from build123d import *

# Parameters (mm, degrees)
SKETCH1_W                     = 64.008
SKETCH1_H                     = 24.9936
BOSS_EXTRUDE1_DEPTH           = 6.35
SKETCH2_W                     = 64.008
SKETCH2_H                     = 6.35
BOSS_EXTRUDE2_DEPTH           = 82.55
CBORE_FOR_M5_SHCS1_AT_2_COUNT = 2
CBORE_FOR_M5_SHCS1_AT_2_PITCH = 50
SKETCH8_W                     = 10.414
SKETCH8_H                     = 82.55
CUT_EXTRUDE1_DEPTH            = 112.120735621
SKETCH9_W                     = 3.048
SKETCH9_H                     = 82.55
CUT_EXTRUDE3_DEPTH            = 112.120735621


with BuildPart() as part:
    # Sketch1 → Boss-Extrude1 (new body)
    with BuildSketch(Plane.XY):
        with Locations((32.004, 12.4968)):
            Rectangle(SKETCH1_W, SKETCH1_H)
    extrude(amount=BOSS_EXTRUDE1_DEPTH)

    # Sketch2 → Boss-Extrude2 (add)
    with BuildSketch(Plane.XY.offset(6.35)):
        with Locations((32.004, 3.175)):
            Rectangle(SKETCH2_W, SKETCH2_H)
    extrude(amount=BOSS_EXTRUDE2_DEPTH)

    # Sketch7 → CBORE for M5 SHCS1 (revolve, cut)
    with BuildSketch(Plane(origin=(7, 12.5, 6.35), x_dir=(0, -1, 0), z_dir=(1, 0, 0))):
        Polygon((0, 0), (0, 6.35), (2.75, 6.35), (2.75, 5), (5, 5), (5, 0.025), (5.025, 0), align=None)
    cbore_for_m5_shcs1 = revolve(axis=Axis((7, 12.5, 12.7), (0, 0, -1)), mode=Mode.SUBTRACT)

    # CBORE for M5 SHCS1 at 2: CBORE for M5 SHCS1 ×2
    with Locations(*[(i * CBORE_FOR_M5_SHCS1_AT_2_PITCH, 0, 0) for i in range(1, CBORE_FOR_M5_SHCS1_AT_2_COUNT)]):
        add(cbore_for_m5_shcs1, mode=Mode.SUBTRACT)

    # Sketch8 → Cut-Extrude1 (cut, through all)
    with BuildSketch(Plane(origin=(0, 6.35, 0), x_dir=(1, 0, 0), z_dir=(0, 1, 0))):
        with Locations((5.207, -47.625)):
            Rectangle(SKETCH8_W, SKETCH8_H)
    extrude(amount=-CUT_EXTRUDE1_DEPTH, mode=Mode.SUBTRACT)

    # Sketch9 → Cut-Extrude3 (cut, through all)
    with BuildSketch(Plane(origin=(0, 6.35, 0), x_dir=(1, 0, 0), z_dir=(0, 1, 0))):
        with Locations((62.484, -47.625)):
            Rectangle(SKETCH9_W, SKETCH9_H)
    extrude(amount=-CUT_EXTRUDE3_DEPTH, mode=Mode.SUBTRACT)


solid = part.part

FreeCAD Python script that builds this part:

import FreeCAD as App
import Part
import Sketcher
from FreeCAD import Vector
Q = App.Units.Quantity

doc = App.newDocument("Part")
params = doc.addObject("Spreadsheet::Sheet", "Params")
for row, (alias, value) in enumerate([
    ("sketch1_width", "2.52 in"),
    ("sketch1_height", "0.984 in"),
    ("pad1_length", "0.25 in"),
    ("sketch2_width", "2.52 in"),
    ("sketch2_height", "0.25 in"),
    ("pad2_length", "3.25 in"),
    ("sketch3_height", "0.25 in"),
    ("groove_angle", "360 deg"),
    ("linearpattern_pitch", "50 mm"),
    ("sketch4_width", "0.41 in"),
    ("sketch4_height", "3.25 in"),
    ("sketch5_width", "0.12 in"),
    ("sketch5_height", "3.25 in"),
], start=1):
    params.set(f"A{row}", alias)
    params.set(f"B{row}", "=" + value)
    params.setAlias(f"B{row}", alias)

body = doc.addObject("PartDesign::Body", "Body")

# Sketch on XY plane
sketch1 = body.newObject("Sketcher::SketchObject", "Sketch")
sketch1.AttachmentSupport = (doc.getObject("XY_Plane"), [""])
sketch1.MapMode = "FlatFace"
sketch1.addGeometry([
    Part.LineSegment(Vector(0, 24.9936, 0), Vector(0, 0, 0)),
    Part.LineSegment(Vector(0, 0, 0), Vector(64.008, 0, 0)),
    Part.LineSegment(Vector(64.008, 0, 0), Vector(64.008, 24.9936, 0)),
    Part.LineSegment(Vector(64.008, 24.9936, 0), Vector(0, 24.9936, 0)),
], False)
sketch1.addConstraint([
    Sketcher.Constraint("Coincident", 0, 2, 1, 1),
    Sketcher.Constraint("Coincident", 1, 2, 2, 1),
    Sketcher.Constraint("Coincident", 2, 2, 3, 1),
    Sketcher.Constraint("Coincident", 3, 2, 0, 1),
    Sketcher.Constraint("Vertical", 0),
    Sketcher.Constraint("Horizontal", 1),
    Sketcher.Constraint("Vertical", 2),
    Sketcher.Constraint("Horizontal", 3),
    Sketcher.Constraint("Coincident", 0, 2, -1, 1),
    Sketcher.Constraint("DistanceX", 1, 1, 1, 2, Q("2.52 in")),
    Sketcher.Constraint("DistanceY", 0, 2, 0, 1, Q("0.984 in")),
])
sketch1.setExpression("Constraints[9]", "Params.sketch1_width")
sketch1.setExpression("Constraints[10]", "Params.sketch1_height")
pad1 = body.newObject("PartDesign::Pad", "Pad")
pad1.Profile = sketch1
pad1.setExpression("Length", "Params.pad1_length")

# Sketch on XY plane
sketch2 = body.newObject("Sketcher::SketchObject", "Sketch001")
sketch2.AttachmentSupport = (doc.getObject("XY_Plane"), [""])
sketch2.MapMode = "FlatFace"
sketch2.AttachmentOffset = App.Placement(Vector(0, 0, 0.25 * 25.4), App.Rotation())
sketch2.addGeometry([
    Part.LineSegment(Vector(0, 6.35, 0), Vector(0, 0, 0)),
    Part.LineSegment(Vector(0, 0, 0), Vector(64.008, 0, 0)),
    Part.LineSegment(Vector(64.008, 0, 0), Vector(64.008, 6.35, 0)),
    Part.LineSegment(Vector(64.008, 6.35, 0), Vector(0, 6.35, 0)),
], False)
sketch2.addConstraint([
    Sketcher.Constraint("Coincident", 0, 2, 1, 1),
    Sketcher.Constraint("Coincident", 1, 2, 2, 1),
    Sketcher.Constraint("Coincident", 2, 2, 3, 1),
    Sketcher.Constraint("Coincident", 3, 2, 0, 1),
    Sketcher.Constraint("Vertical", 0),
    Sketcher.Constraint("Horizontal", 1),
    Sketcher.Constraint("Vertical", 2),
    Sketcher.Constraint("Horizontal", 3),
    Sketcher.Constraint("Coincident", 0, 2, -1, 1),
    Sketcher.Constraint("DistanceX", 1, 1, 1, 2, Q("2.52 in")),
    Sketcher.Constraint("DistanceY", 0, 2, 0, 1, Q("0.25 in")),
])
sketch2.setExpression("Constraints[9]", "Params.sketch2_width")
sketch2.setExpression("Constraints[10]", "Params.sketch2_height")
pad2 = body.newObject("PartDesign::Pad", "Pad001")
pad2.Profile = sketch2
pad2.setExpression("Length", "Params.pad2_length")

# Sketch on YZ plane
sketch3 = body.newObject("Sketcher::SketchObject", "Sketch002")
sketch3.AttachmentSupport = (doc.getObject("YZ_Plane"), [""])
sketch3.MapMode = "FlatFace"
sketch3.AttachmentOffset = App.Placement(Vector(0, 0, 7), App.Rotation())
sketch3.addGeometry([
    Part.LineSegment(Vector(12.5, 0, 0), Vector(12.5, 6.35, 0)),  # 0
    Part.LineSegment(Vector(12.5, 6.35, 0), Vector(7.475, 6.35, 0)),  # 1
    Part.LineSegment(Vector(7.475, 6.35, 0), Vector(7.5, 6.325, 0)),  # 2
    Part.LineSegment(Vector(7.5, 6.325, 0), Vector(7.5, 1.35, 0)),  # 3
    Part.LineSegment(Vector(7.5, 1.35, 0), Vector(9.75, 1.35, 0)),  # 4
    Part.LineSegment(Vector(9.75, 1.35, 0), Vector(9.75, 0, 0)),  # 5
    Part.LineSegment(Vector(9.75, 0, 0), Vector(12.5, 0, 0)),  # 6
], False)
sketch3.addGeometry(Part.LineSegment(Vector(12.5, 6.35, 0), Vector(12.5, 0, 0)), True)  # axis
sketch3.addConstraint([
    Sketcher.Constraint("Coincident", 0, 2, 1, 1),
    Sketcher.Constraint("Coincident", 1, 2, 2, 1),
    Sketcher.Constraint("Coincident", 2, 2, 3, 1),
    Sketcher.Constraint("Coincident", 3, 2, 4, 1),
    Sketcher.Constraint("Coincident", 4, 2, 5, 1),
    Sketcher.Constraint("Coincident", 5, 2, 6, 1),
    Sketcher.Constraint("Coincident", 6, 2, 0, 1),
    Sketcher.Constraint("Vertical", 0),
    Sketcher.Constraint("Horizontal", 1),
    Sketcher.Constraint("Vertical", 3),
    Sketcher.Constraint("Horizontal", 4),
    Sketcher.Constraint("Vertical", 5),
    Sketcher.Constraint("Horizontal", 6),
    Sketcher.Constraint("Vertical", 7),
    Sketcher.Constraint("Coincident", 7, 1, 0, 2),
    Sketcher.Constraint("PointOnObject", 5, 2, -1),
    Sketcher.Constraint("PointOnObject", 7, 2, -1),
    Sketcher.Constraint("Angle", 2, Q("-45 deg")),
    Sketcher.Constraint("DistanceY", 0, 1, 0, 2, Q("0.25 in")),
    Sketcher.Constraint("DistanceX", 1, 2, 1, 1, 5.025),
    Sketcher.Constraint("DistanceX", 4, 1, 4, 2, 2.25),
    Sketcher.Constraint("DistanceX", 6, 1, 6, 2, 2.75),
    Sketcher.Constraint("DistanceY", 3, 2, 3, 1, 4.975),
    Sketcher.Constraint("DistanceX", -1, 1, 0, 2, 12.5),
])
sketch3.setExpression("Constraints[18]", "Params.sketch3_height")
groove = body.newObject("PartDesign::Groove", "Groove")
groove.Profile = sketch3
groove.ReferenceAxis = (sketch3, ["Axis0"])
groove.setExpression("Angle", "Params.groove_angle")
doc.recompute()

linearpattern = body.newObject("PartDesign::LinearPattern", "LinearPattern")
linearpattern.Originals = [groove]
linearpattern.Direction = (doc.getObject("X_Axis"), [""])
linearpattern.Mode = "offset"
linearpattern.setExpression("Offset", "Params.linearpattern_pitch")
linearpattern.Occurrences = 2
body.Tip = linearpattern

# Sketch on XZ plane
sketch4 = body.newObject("Sketcher::SketchObject", "Sketch003")
sketch4.AttachmentSupport = (doc.getObject("XZ_Plane"), [""])
sketch4.MapMode = "FlatFace"
sketch4.AttachmentOffset = App.Placement(Vector(0, 0, -0.25 * 25.4), App.Rotation())
sketch4.addGeometry([
    Part.LineSegment(Vector(0, 6.35, 0), Vector(0, 88.9, 0)),
    Part.LineSegment(Vector(0, 88.9, 0), Vector(10.414, 88.9, 0)),
    Part.LineSegment(Vector(10.414, 88.9, 0), Vector(10.414, 6.35, 0)),
    Part.LineSegment(Vector(10.414, 6.35, 0), Vector(0, 6.35, 0)),
], False)
sketch4.addConstraint([
    Sketcher.Constraint("Coincident", 0, 2, 1, 1),
    Sketcher.Constraint("Coincident", 1, 2, 2, 1),
    Sketcher.Constraint("Coincident", 2, 2, 3, 1),
    Sketcher.Constraint("Coincident", 3, 2, 0, 1),
    Sketcher.Constraint("Vertical", 0),
    Sketcher.Constraint("Horizontal", 1),
    Sketcher.Constraint("Vertical", 2),
    Sketcher.Constraint("Horizontal", 3),
    Sketcher.Constraint("PointOnObject", 0, 2, -2),
    Sketcher.Constraint("DistanceX", 1, 1, 1, 2, Q("0.41 in")),
    Sketcher.Constraint("DistanceY", 0, 1, 0, 2, Q("3.25 in")),
    Sketcher.Constraint("DistanceY", -1, 1, 0, 2, Q("3.5 in")),
])
sketch4.setExpression("Constraints[9]", "Params.sketch4_width")
sketch4.setExpression("Constraints[10]", "Params.sketch4_height")
pocket1 = body.newObject("PartDesign::Pocket", "Pocket")
pocket1.Profile = sketch4
pocket1.Type = "ThroughAll"
pocket1.Reversed = True

# Sketch on XZ plane
sketch5 = body.newObject("Sketcher::SketchObject", "Sketch004")
sketch5.AttachmentSupport = (doc.getObject("XZ_Plane"), [""])
sketch5.MapMode = "FlatFace"
sketch5.AttachmentOffset = App.Placement(Vector(0, 0, -0.25 * 25.4), App.Rotation())
sketch5.addGeometry([
    Part.LineSegment(Vector(60.96, 6.35, 0), Vector(60.96, 88.9, 0)),
    Part.LineSegment(Vector(60.96, 88.9, 0), Vector(64.008, 88.9, 0)),
    Part.LineSegment(Vector(64.008, 88.9, 0), Vector(64.008, 6.35, 0)),
    Part.LineSegment(Vector(64.008, 6.35, 0), Vector(60.96, 6.35, 0)),
], False)
sketch5.addConstraint([
    Sketcher.Constraint("Coincident", 0, 2, 1, 1),
    Sketcher.Constraint("Coincident", 1, 2, 2, 1),
    Sketcher.Constraint("Coincident", 2, 2, 3, 1),
    Sketcher.Constraint("Coincident", 3, 2, 0, 1),
    Sketcher.Constraint("Vertical", 0),
    Sketcher.Constraint("Horizontal", 1),
    Sketcher.Constraint("Vertical", 2),
    Sketcher.Constraint("Horizontal", 3),
    Sketcher.Constraint("DistanceX", 1, 1, 1, 2, Q("0.12 in")),
    Sketcher.Constraint("DistanceY", 0, 1, 0, 2, Q("3.25 in")),
    Sketcher.Constraint("DistanceX", -1, 1, 0, 2, Q("2.4 in")),
    Sketcher.Constraint("DistanceY", -1, 1, 0, 2, Q("3.5 in")),
])
sketch5.setExpression("Constraints[8]", "Params.sketch5_width")
sketch5.setExpression("Constraints[9]", "Params.sketch5_height")
pocket2 = body.newObject("PartDesign::Pocket", "Pocket001")
pocket2.Profile = sketch5
pocket2.Type = "ThroughAll"
pocket2.Reversed = True

doc.recompute()
